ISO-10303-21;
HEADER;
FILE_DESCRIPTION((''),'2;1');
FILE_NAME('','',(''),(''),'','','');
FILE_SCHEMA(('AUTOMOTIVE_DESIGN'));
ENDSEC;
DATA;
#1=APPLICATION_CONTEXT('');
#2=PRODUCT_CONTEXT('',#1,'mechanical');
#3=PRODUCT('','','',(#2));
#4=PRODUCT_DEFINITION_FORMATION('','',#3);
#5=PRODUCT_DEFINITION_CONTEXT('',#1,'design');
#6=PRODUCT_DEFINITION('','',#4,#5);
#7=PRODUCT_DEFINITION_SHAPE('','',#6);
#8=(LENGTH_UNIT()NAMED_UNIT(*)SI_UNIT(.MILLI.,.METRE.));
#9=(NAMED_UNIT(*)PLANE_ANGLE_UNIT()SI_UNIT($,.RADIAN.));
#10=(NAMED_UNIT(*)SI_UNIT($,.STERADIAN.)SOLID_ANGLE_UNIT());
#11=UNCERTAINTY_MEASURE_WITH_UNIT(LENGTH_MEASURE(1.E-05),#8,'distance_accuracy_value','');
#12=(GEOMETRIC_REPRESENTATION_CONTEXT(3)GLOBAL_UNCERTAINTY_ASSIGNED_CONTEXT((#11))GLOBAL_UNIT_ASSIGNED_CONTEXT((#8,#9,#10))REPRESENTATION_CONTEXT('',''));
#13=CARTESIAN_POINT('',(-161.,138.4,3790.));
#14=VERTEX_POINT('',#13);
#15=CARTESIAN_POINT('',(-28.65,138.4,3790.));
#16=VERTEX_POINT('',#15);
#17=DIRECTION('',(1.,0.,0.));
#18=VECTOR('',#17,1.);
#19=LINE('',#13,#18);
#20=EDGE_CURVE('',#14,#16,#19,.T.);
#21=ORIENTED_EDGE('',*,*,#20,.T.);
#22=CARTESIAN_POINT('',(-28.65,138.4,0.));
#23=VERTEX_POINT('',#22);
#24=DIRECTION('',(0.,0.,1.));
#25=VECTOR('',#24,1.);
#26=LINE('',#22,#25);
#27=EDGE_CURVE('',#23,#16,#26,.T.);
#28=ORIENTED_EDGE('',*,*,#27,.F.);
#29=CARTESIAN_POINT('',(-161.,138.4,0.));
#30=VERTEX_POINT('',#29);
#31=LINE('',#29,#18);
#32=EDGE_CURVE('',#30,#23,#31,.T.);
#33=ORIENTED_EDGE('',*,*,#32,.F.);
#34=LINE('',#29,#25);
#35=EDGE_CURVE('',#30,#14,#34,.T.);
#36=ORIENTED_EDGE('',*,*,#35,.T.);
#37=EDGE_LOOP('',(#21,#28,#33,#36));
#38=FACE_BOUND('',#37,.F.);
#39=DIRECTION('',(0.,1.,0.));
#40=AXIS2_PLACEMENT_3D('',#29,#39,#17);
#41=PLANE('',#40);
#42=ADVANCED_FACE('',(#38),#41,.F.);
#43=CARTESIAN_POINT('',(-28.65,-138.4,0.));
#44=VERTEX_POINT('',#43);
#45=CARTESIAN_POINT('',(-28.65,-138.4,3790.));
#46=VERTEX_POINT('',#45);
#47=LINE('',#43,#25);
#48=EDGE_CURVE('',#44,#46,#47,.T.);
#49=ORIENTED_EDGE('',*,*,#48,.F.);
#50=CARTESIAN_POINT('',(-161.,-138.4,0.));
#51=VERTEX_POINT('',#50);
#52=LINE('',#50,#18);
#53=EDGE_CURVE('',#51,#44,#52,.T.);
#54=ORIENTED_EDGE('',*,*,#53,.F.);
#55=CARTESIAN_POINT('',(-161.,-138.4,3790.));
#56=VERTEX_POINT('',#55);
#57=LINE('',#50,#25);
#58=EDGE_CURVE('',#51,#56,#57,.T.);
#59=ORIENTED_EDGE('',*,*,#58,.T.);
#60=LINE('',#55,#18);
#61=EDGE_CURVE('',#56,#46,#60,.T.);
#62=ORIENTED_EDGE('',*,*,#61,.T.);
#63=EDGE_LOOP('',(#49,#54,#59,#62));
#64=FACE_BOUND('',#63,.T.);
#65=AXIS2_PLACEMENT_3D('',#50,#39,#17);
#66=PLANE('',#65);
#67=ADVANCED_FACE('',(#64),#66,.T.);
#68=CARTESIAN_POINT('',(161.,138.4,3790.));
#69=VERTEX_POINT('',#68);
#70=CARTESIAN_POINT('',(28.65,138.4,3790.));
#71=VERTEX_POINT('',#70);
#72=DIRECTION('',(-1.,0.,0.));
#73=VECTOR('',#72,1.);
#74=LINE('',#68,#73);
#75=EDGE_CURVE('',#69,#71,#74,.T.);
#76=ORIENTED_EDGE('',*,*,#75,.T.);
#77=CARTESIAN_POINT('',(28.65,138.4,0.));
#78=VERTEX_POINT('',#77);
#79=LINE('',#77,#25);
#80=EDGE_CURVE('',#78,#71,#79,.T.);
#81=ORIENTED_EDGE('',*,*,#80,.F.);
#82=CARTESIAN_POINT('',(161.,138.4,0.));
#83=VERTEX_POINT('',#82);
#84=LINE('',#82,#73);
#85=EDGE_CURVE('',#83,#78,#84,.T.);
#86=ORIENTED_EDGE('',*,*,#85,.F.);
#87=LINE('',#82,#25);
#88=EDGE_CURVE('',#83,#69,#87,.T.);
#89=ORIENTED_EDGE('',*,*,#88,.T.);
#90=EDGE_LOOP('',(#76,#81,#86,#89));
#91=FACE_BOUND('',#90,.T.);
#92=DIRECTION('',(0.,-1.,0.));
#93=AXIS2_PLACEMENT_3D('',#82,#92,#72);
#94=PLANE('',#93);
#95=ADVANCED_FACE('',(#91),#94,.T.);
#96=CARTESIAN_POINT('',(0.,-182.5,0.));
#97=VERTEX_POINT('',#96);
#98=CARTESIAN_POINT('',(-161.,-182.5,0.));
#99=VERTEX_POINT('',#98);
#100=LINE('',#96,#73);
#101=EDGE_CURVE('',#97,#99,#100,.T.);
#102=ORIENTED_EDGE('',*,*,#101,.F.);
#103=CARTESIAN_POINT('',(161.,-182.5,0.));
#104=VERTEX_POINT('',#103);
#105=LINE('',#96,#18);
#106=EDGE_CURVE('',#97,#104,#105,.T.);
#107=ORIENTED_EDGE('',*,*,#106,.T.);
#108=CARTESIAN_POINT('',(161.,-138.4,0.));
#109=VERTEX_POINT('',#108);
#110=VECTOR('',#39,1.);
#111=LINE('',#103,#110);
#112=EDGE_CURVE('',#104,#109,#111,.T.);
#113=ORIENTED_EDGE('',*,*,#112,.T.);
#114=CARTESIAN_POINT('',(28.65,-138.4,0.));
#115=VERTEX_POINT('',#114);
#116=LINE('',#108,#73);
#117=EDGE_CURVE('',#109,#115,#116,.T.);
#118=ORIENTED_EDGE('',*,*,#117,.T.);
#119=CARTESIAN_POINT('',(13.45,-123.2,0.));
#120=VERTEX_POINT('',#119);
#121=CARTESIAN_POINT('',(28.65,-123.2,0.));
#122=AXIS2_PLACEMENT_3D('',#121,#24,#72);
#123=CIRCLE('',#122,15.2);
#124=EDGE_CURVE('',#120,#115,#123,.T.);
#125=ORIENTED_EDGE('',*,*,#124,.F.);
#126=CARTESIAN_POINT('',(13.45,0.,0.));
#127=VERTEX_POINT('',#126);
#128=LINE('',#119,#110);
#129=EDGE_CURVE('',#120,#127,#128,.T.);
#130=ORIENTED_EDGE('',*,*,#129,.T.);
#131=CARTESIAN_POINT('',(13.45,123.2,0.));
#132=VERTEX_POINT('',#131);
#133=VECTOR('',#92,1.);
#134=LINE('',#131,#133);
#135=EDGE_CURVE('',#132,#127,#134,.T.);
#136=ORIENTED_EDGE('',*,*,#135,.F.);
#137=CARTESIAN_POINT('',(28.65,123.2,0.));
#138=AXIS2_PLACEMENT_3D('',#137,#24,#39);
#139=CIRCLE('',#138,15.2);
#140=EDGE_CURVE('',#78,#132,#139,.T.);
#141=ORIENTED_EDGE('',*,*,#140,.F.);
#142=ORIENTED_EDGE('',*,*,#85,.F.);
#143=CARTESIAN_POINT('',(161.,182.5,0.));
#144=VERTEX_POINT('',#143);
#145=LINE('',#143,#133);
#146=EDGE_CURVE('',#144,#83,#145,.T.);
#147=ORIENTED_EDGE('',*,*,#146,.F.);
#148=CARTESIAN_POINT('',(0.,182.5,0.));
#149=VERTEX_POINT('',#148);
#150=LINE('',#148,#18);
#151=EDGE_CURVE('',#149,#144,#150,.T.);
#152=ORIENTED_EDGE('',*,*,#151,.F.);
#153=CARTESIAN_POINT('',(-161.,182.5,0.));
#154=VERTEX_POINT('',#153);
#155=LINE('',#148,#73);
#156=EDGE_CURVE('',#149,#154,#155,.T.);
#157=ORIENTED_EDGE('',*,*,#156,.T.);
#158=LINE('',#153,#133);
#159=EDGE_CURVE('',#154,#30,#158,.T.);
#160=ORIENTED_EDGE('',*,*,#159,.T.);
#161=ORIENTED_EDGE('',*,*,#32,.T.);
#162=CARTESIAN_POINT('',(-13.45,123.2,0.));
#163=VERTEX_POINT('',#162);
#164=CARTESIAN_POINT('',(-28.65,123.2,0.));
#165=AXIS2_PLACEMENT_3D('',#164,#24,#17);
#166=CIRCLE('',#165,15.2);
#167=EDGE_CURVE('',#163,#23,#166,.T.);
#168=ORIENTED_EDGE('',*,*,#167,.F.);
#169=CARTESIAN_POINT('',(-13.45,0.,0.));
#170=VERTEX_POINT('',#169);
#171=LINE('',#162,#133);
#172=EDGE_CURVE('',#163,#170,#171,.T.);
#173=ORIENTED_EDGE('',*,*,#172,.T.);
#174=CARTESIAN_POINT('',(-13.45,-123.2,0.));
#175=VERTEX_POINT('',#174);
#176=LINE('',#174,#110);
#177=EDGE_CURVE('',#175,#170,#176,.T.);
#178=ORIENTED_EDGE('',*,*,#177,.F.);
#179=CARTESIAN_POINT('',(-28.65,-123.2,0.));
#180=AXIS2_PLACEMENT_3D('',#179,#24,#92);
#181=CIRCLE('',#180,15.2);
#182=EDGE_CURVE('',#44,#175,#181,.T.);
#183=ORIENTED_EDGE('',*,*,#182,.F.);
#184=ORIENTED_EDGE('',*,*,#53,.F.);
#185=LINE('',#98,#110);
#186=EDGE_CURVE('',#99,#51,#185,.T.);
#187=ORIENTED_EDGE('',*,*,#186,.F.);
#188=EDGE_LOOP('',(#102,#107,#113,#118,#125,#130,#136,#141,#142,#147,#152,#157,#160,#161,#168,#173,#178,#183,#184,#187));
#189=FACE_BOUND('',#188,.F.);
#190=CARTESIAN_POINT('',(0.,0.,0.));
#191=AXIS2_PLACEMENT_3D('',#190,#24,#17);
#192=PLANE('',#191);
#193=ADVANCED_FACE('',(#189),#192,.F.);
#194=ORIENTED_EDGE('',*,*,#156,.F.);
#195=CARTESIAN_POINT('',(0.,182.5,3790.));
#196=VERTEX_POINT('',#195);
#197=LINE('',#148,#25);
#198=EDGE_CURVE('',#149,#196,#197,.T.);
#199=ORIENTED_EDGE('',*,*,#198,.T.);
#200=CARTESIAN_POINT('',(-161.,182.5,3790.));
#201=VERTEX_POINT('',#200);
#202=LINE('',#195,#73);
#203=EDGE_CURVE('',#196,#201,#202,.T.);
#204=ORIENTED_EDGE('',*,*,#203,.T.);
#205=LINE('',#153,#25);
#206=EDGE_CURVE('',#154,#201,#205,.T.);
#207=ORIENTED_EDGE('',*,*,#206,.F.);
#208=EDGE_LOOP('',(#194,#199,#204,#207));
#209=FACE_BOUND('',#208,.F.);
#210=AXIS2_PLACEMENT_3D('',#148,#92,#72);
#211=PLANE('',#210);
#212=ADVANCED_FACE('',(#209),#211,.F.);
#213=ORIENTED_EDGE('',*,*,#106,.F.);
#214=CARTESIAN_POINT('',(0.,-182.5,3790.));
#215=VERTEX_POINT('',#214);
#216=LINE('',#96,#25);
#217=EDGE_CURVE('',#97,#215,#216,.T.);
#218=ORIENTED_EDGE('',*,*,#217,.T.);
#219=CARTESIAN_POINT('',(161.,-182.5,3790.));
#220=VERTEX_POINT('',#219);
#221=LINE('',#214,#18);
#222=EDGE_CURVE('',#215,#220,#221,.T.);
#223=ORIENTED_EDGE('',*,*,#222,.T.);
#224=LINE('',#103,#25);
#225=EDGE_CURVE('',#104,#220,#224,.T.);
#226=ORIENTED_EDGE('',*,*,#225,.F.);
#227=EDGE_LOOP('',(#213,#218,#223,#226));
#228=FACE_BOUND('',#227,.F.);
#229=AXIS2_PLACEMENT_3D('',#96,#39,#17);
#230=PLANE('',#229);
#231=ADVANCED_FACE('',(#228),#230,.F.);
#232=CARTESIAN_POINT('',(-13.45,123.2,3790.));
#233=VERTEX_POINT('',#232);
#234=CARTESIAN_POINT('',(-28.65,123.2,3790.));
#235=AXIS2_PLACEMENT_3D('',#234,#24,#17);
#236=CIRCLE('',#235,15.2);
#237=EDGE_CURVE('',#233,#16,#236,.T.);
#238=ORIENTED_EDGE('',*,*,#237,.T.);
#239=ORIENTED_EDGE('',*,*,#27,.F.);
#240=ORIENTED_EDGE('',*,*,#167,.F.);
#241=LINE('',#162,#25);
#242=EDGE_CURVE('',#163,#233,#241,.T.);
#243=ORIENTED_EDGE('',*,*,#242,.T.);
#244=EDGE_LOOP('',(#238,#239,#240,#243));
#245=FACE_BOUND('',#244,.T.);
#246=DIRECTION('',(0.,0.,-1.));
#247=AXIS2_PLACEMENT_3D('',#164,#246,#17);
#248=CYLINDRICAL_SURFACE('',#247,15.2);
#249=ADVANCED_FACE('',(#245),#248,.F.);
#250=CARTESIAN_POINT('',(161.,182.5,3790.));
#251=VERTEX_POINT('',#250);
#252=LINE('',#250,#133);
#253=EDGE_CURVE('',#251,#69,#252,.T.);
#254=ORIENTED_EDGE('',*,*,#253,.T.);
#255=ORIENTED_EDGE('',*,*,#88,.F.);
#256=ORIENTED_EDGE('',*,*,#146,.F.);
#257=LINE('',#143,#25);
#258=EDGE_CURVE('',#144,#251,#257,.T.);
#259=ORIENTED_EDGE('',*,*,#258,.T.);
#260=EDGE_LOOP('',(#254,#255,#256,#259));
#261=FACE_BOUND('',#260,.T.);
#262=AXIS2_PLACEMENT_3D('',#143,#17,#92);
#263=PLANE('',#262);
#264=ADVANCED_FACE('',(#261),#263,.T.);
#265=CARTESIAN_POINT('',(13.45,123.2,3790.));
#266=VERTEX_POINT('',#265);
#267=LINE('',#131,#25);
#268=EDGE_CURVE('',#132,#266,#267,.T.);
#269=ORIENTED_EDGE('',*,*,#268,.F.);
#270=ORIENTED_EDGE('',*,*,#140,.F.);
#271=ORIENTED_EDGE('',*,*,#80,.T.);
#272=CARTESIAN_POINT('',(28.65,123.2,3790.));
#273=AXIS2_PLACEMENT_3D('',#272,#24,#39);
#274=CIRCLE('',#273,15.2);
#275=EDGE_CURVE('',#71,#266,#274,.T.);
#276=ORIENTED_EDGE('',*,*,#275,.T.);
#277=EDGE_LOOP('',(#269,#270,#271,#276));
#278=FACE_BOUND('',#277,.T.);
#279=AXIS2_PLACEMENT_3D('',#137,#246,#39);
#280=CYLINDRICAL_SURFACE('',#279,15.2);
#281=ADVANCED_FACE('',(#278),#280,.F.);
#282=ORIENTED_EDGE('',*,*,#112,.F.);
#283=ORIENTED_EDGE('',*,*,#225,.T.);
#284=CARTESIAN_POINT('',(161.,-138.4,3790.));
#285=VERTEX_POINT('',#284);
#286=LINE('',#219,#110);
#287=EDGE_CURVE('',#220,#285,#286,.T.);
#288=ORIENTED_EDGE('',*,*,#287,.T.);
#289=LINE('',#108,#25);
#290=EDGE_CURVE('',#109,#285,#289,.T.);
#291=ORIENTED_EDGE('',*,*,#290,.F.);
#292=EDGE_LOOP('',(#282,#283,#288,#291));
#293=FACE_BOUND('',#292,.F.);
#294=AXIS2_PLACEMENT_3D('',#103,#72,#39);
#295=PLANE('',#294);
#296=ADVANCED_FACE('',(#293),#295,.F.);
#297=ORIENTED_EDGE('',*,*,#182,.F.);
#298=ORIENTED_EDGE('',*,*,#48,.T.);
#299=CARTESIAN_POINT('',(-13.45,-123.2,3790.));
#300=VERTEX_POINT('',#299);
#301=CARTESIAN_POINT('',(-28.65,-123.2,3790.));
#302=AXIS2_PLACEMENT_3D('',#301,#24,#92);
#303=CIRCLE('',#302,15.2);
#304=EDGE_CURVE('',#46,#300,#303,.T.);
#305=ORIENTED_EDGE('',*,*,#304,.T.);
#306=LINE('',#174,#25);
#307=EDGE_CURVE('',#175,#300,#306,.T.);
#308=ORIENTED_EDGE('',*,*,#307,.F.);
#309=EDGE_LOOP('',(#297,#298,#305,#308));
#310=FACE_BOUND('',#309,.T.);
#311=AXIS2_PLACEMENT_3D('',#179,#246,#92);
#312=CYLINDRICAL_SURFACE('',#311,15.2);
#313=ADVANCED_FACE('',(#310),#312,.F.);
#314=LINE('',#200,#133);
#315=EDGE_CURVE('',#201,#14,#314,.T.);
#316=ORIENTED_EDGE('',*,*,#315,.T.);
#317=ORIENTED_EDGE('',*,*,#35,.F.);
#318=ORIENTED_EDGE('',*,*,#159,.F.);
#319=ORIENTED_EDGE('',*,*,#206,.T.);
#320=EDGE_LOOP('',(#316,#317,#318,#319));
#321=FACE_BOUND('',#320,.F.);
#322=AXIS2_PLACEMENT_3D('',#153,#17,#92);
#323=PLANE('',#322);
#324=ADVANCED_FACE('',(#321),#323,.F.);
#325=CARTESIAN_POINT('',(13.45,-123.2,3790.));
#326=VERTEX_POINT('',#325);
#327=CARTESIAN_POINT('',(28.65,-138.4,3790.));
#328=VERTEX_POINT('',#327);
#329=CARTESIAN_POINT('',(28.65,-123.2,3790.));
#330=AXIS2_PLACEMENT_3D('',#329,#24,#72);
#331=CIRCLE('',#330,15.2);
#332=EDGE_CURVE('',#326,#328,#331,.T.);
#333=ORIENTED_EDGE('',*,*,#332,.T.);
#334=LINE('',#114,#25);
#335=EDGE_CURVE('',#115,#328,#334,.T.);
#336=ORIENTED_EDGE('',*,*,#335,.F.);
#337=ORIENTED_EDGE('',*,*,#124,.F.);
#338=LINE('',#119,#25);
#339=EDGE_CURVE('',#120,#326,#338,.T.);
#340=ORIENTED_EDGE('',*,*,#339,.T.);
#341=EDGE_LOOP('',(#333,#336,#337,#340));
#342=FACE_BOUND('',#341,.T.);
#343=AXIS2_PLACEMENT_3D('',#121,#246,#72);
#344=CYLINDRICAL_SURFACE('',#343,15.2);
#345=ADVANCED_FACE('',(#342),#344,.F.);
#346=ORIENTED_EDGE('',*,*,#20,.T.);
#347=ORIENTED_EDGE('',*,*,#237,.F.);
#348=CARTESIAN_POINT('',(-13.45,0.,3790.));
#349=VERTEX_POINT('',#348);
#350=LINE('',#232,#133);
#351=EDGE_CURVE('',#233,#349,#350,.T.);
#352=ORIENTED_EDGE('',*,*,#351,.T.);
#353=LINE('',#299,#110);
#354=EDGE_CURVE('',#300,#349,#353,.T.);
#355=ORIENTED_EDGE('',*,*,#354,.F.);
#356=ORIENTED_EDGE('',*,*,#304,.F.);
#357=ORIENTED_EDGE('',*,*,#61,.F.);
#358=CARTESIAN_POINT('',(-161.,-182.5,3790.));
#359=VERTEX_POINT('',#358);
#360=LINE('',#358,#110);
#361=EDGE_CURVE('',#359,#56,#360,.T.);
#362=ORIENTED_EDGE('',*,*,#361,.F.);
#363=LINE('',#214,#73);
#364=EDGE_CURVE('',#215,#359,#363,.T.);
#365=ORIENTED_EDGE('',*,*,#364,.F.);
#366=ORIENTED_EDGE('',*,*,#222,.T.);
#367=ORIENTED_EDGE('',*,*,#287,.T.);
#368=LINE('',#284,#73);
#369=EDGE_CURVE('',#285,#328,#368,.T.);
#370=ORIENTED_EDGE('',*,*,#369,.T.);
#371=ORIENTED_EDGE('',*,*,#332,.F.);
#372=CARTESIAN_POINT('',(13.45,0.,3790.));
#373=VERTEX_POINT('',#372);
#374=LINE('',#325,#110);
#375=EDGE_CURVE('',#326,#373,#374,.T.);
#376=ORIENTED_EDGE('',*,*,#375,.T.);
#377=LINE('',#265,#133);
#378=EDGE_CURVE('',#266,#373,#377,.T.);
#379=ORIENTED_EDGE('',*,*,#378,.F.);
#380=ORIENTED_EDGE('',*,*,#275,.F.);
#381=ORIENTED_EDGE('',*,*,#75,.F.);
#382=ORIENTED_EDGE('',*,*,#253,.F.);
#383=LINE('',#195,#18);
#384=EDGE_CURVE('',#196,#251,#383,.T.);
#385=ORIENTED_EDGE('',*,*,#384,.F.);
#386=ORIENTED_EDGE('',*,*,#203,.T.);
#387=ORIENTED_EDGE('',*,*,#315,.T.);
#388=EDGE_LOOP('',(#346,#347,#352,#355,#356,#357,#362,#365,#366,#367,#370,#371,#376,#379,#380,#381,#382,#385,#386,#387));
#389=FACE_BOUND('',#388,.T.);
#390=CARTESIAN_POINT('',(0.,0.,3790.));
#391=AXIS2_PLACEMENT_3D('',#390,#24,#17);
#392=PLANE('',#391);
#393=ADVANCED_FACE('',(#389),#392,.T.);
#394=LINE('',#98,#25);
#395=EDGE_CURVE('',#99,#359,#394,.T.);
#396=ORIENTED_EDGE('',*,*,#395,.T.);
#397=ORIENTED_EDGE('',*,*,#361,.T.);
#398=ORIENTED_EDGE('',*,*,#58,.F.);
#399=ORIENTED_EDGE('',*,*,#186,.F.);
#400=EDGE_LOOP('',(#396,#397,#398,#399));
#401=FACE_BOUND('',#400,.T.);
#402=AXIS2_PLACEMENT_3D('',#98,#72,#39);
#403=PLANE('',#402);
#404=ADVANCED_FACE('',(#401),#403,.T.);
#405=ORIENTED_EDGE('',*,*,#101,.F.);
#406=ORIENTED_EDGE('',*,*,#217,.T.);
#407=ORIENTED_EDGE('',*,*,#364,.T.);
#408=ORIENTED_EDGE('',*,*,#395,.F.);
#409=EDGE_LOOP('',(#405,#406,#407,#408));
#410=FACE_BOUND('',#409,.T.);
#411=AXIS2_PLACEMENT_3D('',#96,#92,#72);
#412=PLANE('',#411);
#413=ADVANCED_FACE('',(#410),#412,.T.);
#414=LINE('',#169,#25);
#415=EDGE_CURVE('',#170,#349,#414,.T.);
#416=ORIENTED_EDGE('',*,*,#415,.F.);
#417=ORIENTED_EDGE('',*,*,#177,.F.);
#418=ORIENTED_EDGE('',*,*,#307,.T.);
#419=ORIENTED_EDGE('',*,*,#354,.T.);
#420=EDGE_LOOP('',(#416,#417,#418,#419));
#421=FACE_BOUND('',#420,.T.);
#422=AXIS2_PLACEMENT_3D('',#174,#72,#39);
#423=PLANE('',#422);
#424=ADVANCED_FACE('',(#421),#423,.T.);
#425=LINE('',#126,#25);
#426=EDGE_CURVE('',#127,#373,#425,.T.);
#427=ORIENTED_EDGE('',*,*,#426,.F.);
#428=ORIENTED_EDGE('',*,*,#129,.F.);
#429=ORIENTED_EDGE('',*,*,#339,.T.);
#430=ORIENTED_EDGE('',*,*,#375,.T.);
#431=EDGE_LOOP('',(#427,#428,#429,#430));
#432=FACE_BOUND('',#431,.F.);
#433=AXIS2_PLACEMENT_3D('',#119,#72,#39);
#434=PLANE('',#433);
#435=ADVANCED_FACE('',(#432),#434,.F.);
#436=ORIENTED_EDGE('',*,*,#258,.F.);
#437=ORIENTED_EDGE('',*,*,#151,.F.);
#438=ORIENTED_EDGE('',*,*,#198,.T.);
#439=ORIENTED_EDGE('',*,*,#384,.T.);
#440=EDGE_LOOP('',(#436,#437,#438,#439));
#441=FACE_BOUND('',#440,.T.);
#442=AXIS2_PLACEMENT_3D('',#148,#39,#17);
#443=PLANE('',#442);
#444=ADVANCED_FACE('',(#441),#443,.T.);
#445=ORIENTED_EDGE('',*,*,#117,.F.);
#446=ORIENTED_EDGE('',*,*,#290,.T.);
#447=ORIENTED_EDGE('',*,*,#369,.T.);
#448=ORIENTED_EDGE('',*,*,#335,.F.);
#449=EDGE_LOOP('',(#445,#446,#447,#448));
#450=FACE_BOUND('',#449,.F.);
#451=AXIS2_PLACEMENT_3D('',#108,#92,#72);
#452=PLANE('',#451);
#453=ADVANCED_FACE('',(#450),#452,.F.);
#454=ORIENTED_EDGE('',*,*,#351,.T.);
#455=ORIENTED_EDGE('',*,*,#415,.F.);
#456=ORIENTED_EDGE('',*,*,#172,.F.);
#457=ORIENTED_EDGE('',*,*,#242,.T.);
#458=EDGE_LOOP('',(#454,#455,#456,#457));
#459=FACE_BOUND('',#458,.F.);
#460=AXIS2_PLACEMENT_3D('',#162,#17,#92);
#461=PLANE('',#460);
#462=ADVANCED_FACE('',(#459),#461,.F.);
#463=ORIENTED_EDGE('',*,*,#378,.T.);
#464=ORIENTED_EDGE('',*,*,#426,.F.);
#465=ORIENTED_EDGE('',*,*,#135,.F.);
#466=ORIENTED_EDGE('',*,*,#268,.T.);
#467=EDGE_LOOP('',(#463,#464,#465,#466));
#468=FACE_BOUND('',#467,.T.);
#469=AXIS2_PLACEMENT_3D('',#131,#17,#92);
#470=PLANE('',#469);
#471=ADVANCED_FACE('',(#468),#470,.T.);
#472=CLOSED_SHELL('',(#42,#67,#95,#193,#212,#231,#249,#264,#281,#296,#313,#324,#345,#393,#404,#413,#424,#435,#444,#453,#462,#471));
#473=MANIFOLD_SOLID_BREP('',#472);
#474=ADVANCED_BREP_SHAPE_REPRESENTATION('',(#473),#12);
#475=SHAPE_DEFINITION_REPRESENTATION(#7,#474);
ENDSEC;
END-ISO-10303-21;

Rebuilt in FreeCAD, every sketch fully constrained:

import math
import FreeCAD as App
import Part
import Sketcher

V = App.Vector

doc = App.newDocument("Part")
body = doc.addObject("PartDesign::Body", "Body")

sketch1 = body.newObject("Sketcher::SketchObject", "Sketch")
sketch1.AttachmentSupport = (doc.getObject("XY_Plane"), [""])
sketch1.MapMode = "FlatFace"
sketch1.addGeometry([
    Part.LineSegment(V(-161, -138, 0), V(-161, -182, 0)),
    Part.LineSegment(V(-161, -182, 0), V(161, -182, 0)),
    Part.LineSegment(V(161, -182, 0), V(161, -138, 0)),
    Part.LineSegment(V(161, -138, 0), V(29, -138, 0)),
    Part.ArcOfCircle(Part.Circle(V(29, -123, 0), V(0, 0, 1), 15), math.radians(180), math.radians(270)),
    Part.LineSegment(V(13, -123, 0), V(13, 123, 0)),
    Part.ArcOfCircle(Part.Circle(V(29, 123, 0), V(0, 0, 1), 15), math.radians(90), math.radians(180)),
    Part.LineSegment(V(29, 138, 0), V(161, 138, 0)),
    Part.LineSegment(V(161, 138, 0), V(161, 182, 0)),
    Part.LineSegment(V(161, 182, 0), V(-161, 182, 0)),
    Part.LineSegment(V(-161, 182, 0), V(-161, 138, 0)),
    Part.LineSegment(V(-161, 138, 0), V(-29, 138, 0)),
    Part.ArcOfCircle(Part.Circle(V(-29, 123, 0), V(0, 0, 1), 15), math.radians(0), math.radians(90)),
    Part.LineSegment(V(-13, 123, 0), V(-13, -123, 0)),
    Part.ArcOfCircle(Part.Circle(V(-29, -123, 0), V(0, 0, 1), 15), math.radians(-90), math.radians(0)),
    Part.LineSegment(V(-29, -138, 0), V(-161, -138, 0)),
], False)
sketch1.addConstraint([
    Sketcher.Constraint("Coincident", 0, 2, 1, 1),
    Sketcher.Constraint("Coincident", 1, 2, 2, 1),
    Sketcher.Constraint("Coincident", 2, 2, 3, 1),
    Sketcher.Constraint("Tangent", 3, 2, 4, 2),
    Sketcher.Constraint("Tangent", 4, 1, 5, 1),
    Sketcher.Constraint("Tangent", 5, 2, 6, 2),
    Sketcher.Constraint("Tangent", 6, 1, 7, 1),
    Sketcher.Constraint("Coincident", 7, 2, 8, 1),
    Sketcher.Constraint("Coincident", 8, 2, 9, 1),
    Sketcher.Constraint("Coincident", 9, 2, 10, 1),
    Sketcher.Constraint("Coincident", 10, 2, 11, 1),
    Sketcher.Constraint("Tangent", 11, 2, 12, 2),
    Sketcher.Constraint("Tangent", 12, 1, 13, 1),
    Sketcher.Constraint("Tangent", 13, 2, 14, 2),
    Sketcher.Constraint("Tangent", 14, 1, 15, 1),
    Sketcher.Constraint("Coincident", 15, 2, 0, 1),
    Sketcher.Constraint("Vertical", 0),
    Sketcher.Constraint("Horizontal", 1),
    Sketcher.Constraint("Vertical", 2),
    Sketcher.Constraint("Horizontal", 3),
    Sketcher.Constraint("Vertical", 5),
    Sketcher.Constraint("Horizontal", 7),
    Sketcher.Constraint("Vertical", 8),
    Sketcher.Constraint("Horizontal", 9),
    Sketcher.Constraint("Vertical", 10),
    Sketcher.Constraint("Horizontal", 11),
    Sketcher.Constraint("Vertical", 13),
    Sketcher.Constraint("Horizontal", 15),
    Sketcher.Constraint("Equal", 4, 6),
    Sketcher.Constraint("Equal", 6, 12),
    Sketcher.Constraint("Equal", 12, 14),
    Sketcher.Constraint("Symmetric", 4, 3, 12, 3, -1, 1),
    Sketcher.Constraint("Symmetric", 0, 2, 8, 2, -1, 1),
    Sketcher.Constraint("Symmetric", 7, 2, 10, 2, -2),
    Sketcher.Constraint("Symmetric", 2, 2, 15, 2, -2),
    Sketcher.Constraint("Radius", 4, 15.2),
    Sketcher.Constraint("DistanceY", 0, 2, 0, 1, 44.1),
    Sketcher.Constraint("DistanceX", 0, 2, -1, 1, 161.0),
    Sketcher.Constraint("DistanceY", 0, 2, -1, 1, 182.5),
    Sketcher.Constraint("DistanceX", -1, 1, 4, 1, 13.45),
])
pad1 = body.newObject("PartDesign::Pad", "Pad")
pad1.Profile = sketch1
pad1.Length = 3790

doc.recompute()
